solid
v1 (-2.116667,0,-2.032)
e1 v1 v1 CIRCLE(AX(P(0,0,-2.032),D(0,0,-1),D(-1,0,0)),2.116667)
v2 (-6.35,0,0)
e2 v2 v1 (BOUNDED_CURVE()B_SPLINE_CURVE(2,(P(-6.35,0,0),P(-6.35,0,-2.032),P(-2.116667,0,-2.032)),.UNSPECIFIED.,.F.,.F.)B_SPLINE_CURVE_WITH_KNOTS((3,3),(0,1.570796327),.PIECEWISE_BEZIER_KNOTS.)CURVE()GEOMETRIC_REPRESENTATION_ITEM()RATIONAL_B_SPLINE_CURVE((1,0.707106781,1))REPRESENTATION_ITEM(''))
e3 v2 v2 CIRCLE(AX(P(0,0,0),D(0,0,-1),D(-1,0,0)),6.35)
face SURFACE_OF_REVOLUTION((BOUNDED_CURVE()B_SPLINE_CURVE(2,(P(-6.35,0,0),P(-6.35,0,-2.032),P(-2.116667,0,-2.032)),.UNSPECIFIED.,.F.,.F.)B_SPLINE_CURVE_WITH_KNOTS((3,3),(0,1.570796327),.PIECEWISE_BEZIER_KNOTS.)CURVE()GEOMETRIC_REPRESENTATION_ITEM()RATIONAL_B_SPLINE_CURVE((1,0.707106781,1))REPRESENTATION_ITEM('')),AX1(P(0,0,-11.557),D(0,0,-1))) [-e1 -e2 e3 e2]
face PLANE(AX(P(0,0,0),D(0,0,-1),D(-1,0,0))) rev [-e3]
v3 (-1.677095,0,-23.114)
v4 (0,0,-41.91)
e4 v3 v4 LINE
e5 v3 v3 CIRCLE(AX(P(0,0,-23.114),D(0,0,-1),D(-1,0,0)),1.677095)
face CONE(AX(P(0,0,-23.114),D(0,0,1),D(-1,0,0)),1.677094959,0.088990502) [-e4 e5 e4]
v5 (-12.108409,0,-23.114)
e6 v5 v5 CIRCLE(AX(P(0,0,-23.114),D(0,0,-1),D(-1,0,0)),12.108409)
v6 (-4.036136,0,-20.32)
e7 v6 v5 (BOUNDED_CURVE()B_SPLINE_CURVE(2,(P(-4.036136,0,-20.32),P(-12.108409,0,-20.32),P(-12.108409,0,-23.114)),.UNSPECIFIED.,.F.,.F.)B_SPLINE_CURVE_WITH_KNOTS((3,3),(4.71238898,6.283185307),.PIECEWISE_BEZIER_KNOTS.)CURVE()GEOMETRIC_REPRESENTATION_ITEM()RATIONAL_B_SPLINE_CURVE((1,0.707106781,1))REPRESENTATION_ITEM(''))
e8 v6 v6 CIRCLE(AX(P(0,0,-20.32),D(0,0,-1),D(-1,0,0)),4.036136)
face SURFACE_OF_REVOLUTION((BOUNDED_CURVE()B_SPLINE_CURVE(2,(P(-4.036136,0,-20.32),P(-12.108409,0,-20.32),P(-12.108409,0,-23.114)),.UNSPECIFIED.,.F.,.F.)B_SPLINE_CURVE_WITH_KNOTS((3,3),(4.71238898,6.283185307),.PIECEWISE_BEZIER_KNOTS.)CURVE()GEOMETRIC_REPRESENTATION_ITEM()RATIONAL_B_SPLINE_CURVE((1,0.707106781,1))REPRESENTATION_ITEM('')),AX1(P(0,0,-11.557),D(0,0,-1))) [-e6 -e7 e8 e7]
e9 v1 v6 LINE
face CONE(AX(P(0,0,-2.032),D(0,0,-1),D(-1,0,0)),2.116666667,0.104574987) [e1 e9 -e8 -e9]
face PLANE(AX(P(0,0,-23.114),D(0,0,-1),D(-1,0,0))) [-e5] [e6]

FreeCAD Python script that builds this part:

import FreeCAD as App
import Part
import Sketcher
Q = App.Units.Quantity

doc = App.newDocument("Part")
body = doc.addObject("PartDesign::Body", "Body")

sketch1 = body.newObject("Sketcher::SketchObject", "Sketch")
sketch1.AttachmentSupport = (doc.getObject("XZ_Plane"), [""])
sketch1.MapMode = "FlatFace"
sketch1.addGeometry(Part.BSplineCurve([App.Vector(-6.35, 0, 0), App.Vector(-6.35, -2.032, 0), App.Vector(-2.116667, -2.032, 0)], [3, 3], [0, 1.570796327], False, 2, [1, 0.707106781, 1], False), False)
sketch1.addGeometry(Part.LineSegment(App.Vector(-2.116667, -2.032, 0), App.Vector(-4.036136, -20.32, 0)), False)
sketch1.addGeometry(Part.BSplineCurve([App.Vector(-4.036136, -20.32, 0), App.Vector(-12.108409, -20.32, 0), App.Vector(-12.108409, -23.114, 0)], [3, 3], [4.71238898, 6.283185307], False, 2, [1, 0.707106781, 1], False), False)
sketch1.addGeometry(Part.LineSegment(App.Vector(-12.108409, -23.114, 0), App.Vector(-1.677095, -23.114, 0)), False)
sketch1.addGeometry(Part.LineSegment(App.Vector(-1.677095, -23.114, 0), App.Vector(0, -41.91, 0)), False)
sketch1.addGeometry(Part.LineSegment(App.Vector(0, -41.91, 0), App.Vector(0, 0, 0)), False)
sketch1.addGeometry(Part.LineSegment(App.Vector(0, 0, 0), App.Vector(-6.35, 0, 0)), False)
sketch1.addConstraint(Sketcher.Constraint("Block", 0))
sketch1.addConstraint(Sketcher.Constraint("Block", 2))
sketch1.addConstraint(Sketcher.Constraint("Coincident", 0, 2, 1, 1))
sketch1.addConstraint(Sketcher.Constraint("Coincident", 1, 2, 2, 1))
sketch1.addConstraint(Sketcher.Constraint("Coincident", 2, 2, 3, 1))
sketch1.addConstraint(Sketcher.Constraint("Coincident", 3, 2, 4, 1))
sketch1.addConstraint(Sketcher.Constraint("Coincident", 4, 2, 5, 1))
sketch1.addConstraint(Sketcher.Constraint("Coincident", 5, 2, 6, 1))
sketch1.addConstraint(Sketcher.Constraint("Coincident", 6, 2, 0, 1))
sketch1.addConstraint(Sketcher.Constraint("Horizontal", 3))
sketch1.addConstraint(Sketcher.Constraint("Vertical", 5))
sketch1.addConstraint(Sketcher.Constraint("Horizontal", 6))
sketch1.addConstraint(Sketcher.Constraint("PointOnObject", 4, 2, -2))
sketch1.addConstraint(Sketcher.Constraint("DistanceY", 5, 1, 5, 2, Q("1.65 in")))
sketch1.addConstraint(Sketcher.Constraint("DistanceX", 3, 1, 3, 2, 10.431314))
revolution = body.newObject("PartDesign::Revolution", "Revolution")
revolution.Profile = sketch1
revolution.ReferenceAxis = (sketch1, ["V_Axis"])
revolution.Angle = 360

doc.recompute()
